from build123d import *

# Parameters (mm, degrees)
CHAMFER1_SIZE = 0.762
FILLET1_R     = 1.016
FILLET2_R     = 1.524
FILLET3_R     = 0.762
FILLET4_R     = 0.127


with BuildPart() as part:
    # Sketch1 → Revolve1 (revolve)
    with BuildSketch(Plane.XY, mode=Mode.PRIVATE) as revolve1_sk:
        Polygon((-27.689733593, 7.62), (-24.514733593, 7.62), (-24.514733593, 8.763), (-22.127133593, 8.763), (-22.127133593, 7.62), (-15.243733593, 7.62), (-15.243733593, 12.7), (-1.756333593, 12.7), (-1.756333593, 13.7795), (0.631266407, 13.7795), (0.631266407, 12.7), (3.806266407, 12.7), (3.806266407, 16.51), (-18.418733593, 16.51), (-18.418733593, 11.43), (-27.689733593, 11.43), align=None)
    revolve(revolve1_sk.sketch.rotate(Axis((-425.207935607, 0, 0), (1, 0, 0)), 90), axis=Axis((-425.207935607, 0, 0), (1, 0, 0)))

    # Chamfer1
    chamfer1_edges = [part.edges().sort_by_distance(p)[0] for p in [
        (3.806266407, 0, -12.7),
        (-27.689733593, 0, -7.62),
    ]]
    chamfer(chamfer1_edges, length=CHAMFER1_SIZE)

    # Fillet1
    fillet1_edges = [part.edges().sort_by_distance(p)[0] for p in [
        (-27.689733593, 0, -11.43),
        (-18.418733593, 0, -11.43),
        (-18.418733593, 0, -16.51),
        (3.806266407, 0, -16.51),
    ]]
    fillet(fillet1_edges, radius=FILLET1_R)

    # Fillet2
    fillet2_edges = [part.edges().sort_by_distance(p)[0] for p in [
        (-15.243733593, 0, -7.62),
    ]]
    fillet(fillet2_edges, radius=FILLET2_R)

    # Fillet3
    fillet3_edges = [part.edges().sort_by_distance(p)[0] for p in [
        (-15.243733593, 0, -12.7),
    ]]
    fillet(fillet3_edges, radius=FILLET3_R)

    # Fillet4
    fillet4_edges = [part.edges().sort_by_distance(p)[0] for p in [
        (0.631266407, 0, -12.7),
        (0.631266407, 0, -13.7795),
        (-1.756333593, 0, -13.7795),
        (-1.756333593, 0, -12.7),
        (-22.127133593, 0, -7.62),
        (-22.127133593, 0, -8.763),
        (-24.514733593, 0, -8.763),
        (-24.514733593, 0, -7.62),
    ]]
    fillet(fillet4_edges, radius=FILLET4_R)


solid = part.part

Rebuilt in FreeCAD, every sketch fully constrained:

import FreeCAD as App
import Part
import Sketcher
Q = App.Units.Quantity


def edges_at(feature, points):
    """Names of the edges that pass closest to the given points."""
    edges = feature.Shape.Edges
    near = lambda p: min(range(len(edges)), key=lambda i: edges[i].distToShape(Part.Vertex(*p))[0])
    return sorted({f"Edge{near(p) + 1}" for p in points})

doc = App.newDocument("Part")
body = doc.addObject("PartDesign::Body", "Body")

# Sketch on XY plane
sketch1 = body.newObject("Sketcher::SketchObject", "Sketch")
sketch1.AttachmentSupport = (doc.getObject("XY_Plane"), [""])
sketch1.MapMode = "FlatFace"
sketch1.addGeometry(Part.LineSegment(App.Vector(-27.7, 7.6, 0), App.Vector(-24.5, 7.6, 0)), False)
sketch1.addGeometry(Part.LineSegment(App.Vector(-24.5, 7.6, 0), App.Vector(-24.5, 8.8, 0)), False)
sketch1.addGeometry(Part.LineSegment(App.Vector(-24.5, 8.8, 0), App.Vector(-22.1, 8.8, 0)), False)
sketch1.addGeometry(Part.LineSegment(App.Vector(-22.1, 8.8, 0), App.Vector(-22.1, 7.6, 0)), False)
sketch1.addGeometry(Part.LineSegment(App.Vector(-22.1, 7.6, 0), App.Vector(-15.2, 7.6, 0)), False)
sketch1.addGeometry(Part.LineSegment(App.Vector(-15.2, 7.6, 0), App.Vector(-15.2, 12.7, 0)), False)
sketch1.addGeometry(Part.LineSegment(App.Vector(-15.2, 12.7, 0), App.Vector(-1.8, 12.7, 0)), False)
sketch1.addGeometry(Part.LineSegment(App.Vector(-1.8, 12.7, 0), App.Vector(-1.8, 13.8, 0)), False)
sketch1.addGeometry(Part.LineSegment(App.Vector(-1.8, 13.8, 0), App.Vector(0.6, 13.8, 0)), False)
sketch1.addGeometry(Part.LineSegment(App.Vector(0.6, 13.8, 0), App.Vector(0.6, 12.7, 0)), False)
sketch1.addGeometry(Part.LineSegment(App.Vector(0.6, 12.7, 0), App.Vector(3.8, 12.7, 0)), False)
sketch1.addGeometry(Part.LineSegment(App.Vector(3.8, 12.7, 0), App.Vector(3.8, 16.5, 0)), False)
sketch1.addGeometry(Part.LineSegment(App.Vector(3.8, 16.5, 0), App.Vector(-18.4, 16.5, 0)), False)
sketch1.addGeometry(Part.LineSegment(App.Vector(-18.4, 16.5, 0), App.Vector(-18.4, 11.4, 0)), False)
sketch1.addGeometry(Part.LineSegment(App.Vector(-18.4, 11.4, 0), App.Vector(-27.7, 11.4, 0)), False)
sketch1.addGeometry(Part.LineSegment(App.Vector(-27.7, 11.4, 0), App.Vector(-27.7, 7.6, 0)), False)
sketch1.addConstraint(Sketcher.Constraint("Coincident", 0, 2, 1, 1))
sketch1.addConstraint(Sketcher.Constraint("Coincident", 1, 2, 2, 1))
sketch1.addConstraint(Sketcher.Constraint("Coincident", 2, 2, 3, 1))
sketch1.addConstraint(Sketcher.Constraint("Coincident", 3, 2, 4, 1))
sketch1.addConstraint(Sketcher.Constraint("Coincident", 4, 2, 5, 1))
sketch1.addConstraint(Sketcher.Constraint("Coincident", 5, 2, 6, 1))
sketch1.addConstraint(Sketcher.Constraint("Coincident", 6, 2, 7, 1))
sketch1.addConstraint(Sketcher.Constraint("Coincident", 7, 2, 8, 1))
sketch1.addConstraint(Sketcher.Constraint("Coincident", 8, 2, 9, 1))
sketch1.addConstraint(Sketcher.Constraint("Coincident", 9, 2, 10, 1))
sketch1.addConstraint(Sketcher.Constraint("Coincident", 10, 2, 11, 1))
sketch1.addConstraint(Sketcher.Constraint("Coincident", 11, 2, 12, 1))
sketch1.addConstraint(Sketcher.Constraint("Coincident", 12, 2, 13, 1))
sketch1.addConstraint(Sketcher.Constraint("Coincident", 13, 2, 14, 1))
sketch1.addConstraint(Sketcher.Constraint("Coincident", 14, 2, 15, 1))
sketch1.addConstraint(Sketcher.Constraint("Coincident", 15, 2, 0, 1))
sketch1.addConstraint(Sketcher.Constraint("Horizontal", 0))
sketch1.addConstraint(Sketcher.Constraint("Vertical", 1))
sketch1.addConstraint(Sketcher.Constraint("Horizontal", 2))
sketch1.addConstraint(Sketcher.Constraint("Vertical", 3))
sketch1.addConstraint(Sketcher.Constraint("Horizontal", 4))
sketch1.addConstraint(Sketcher.Constraint("Vertical", 5))
sketch1.addConstraint(Sketcher.Constraint("Horizontal", 6))
sketch1.addConstraint(Sketcher.Constraint("Vertical", 7))
sketch1.addConstraint(Sketcher.Constraint("Horizontal", 8))
sketch1.addConstraint(Sketcher.Constraint("Vertical", 9))
sketch1.addConstraint(Sketcher.Constraint("Horizontal", 10))
sketch1.addConstraint(Sketcher.Constraint("Vertical", 11))
sketch1.addConstraint(Sketcher.Constraint("Horizontal", 12))
sketch1.addConstraint(Sketcher.Constraint("Vertical", 13))
sketch1.addConstraint(Sketcher.Constraint("Horizontal", 14))
sketch1.addConstraint(Sketcher.Constraint("Vertical", 15))
sketch1.addConstraint(Sketcher.Constraint("Horizontal", 0, 2, 3, 2))
sketch1.addConstraint(Sketcher.Constraint("Horizontal", 6, 2, 9, 2))
sketch1.addConstraint(Sketcher.Constraint("Equal", 2, 8))
sketch1.addConstraint(Sketcher.Constraint("Equal", 0, 10))
sketch1.addConstraint(Sketcher.Constraint("Equal", 5, 13))
sketch1.addConstraint(Sketcher.Constraint("DistanceY", 5, 1, 5, 2, Q("0.2 in")))
sketch1.addConstraint(Sketcher.Constraint("DistanceY", 11, 1, 11, 2, Q("0.15 in")))
sketch1.addConstraint(Sketcher.Constraint("DistanceY", -1, 1, 0, 2, Q("0.3 in")))
sketch1.addConstraint(Sketcher.Constraint("DistanceX", 0, 1, 0, 2, Q("0.125 in")))
sketch1.addConstraint(Sketcher.Constraint("DistanceX", 2, 1, 2, 2, Q("0.094 in")))
sketch1.addConstraint(Sketcher.Constraint("DistanceX", 4, 1, 4, 2, Q("0.271 in")))
sketch1.addConstraint(Sketcher.Constraint("DistanceX", 6, 1, 6, 2, Q("0.531 in")))
sketch1.addConstraint(Sketcher.Constraint("DistanceX", 12, 2, 12, 1, Q("0.875 in")))
sketch1.addConstraint(Sketcher.Constraint("DistanceY", 1, 1, 1, 2, Q("0.045 in")))
sketch1.addConstraint(Sketcher.Constraint("DistanceY", 7, 1, 7, 2, Q("0.0425 in")))
sketch1.addConstraint(Sketcher.Constraint("DistanceX", 0, 2, -1, 1, Q("24.514734 mm")))
revolution = body.newObject("PartDesign::Revolution", "Revolution")
revolution.Profile = sketch1
revolution.ReferenceAxis = (sketch1, ["H_Axis"])
revolution.Angle = 360
doc.recompute()

chamfer = body.newObject("PartDesign::Chamfer", "Chamfer")
chamfer.Base = (revolution, edges_at(revolution, [(3.806, 0, -12.7), (-27.69, 0, -7.62)]))
chamfer.Size = Q("0.03 in")
doc.recompute()

fillet = body.newObject("PartDesign::Fillet", "Fillet")
fillet.Base = (chamfer, edges_at(chamfer, [
    (-27.69, 0, -11.43),
    (-18.419, 0, -11.43),
    (-18.419, 0, -16.51),
    (3.806, 0, -16.51),
]))
fillet.Radius = Q("0.04 in")
doc.recompute()

fillet2 = body.newObject("PartDesign::Fillet", "Fillet001")
fillet2.Base = (fillet, edges_at(fillet, [(-15.244, 0, -7.62)]))
fillet2.Radius = Q("0.06 in")
doc.recompute()

fillet3 = body.newObject("PartDesign::Fillet", "Fillet002")
fillet3.Base = (fillet2, edges_at(fillet2, [(-15.244, 0, -12.7)]))
fillet3.Radius = Q("0.03 in")
doc.recompute()

fillet4 = body.newObject("PartDesign::Fillet", "Fillet003")
fillet4.Base = (fillet3, edges_at(fillet3, [
    (0.631, 0, -12.7),
    (0.631, 0, -13.78),
    (-1.756, 0, -13.78),
    (-1.756, 0, -12.7),
    (-22.127, 0, -7.62),
    (-22.127, 0, -8.763),
    (-24.515, 0, -8.763),
    (-24.515, 0, -7.62),
]))
fillet4.Radius = Q("0.005 in")

doc.recompute()
